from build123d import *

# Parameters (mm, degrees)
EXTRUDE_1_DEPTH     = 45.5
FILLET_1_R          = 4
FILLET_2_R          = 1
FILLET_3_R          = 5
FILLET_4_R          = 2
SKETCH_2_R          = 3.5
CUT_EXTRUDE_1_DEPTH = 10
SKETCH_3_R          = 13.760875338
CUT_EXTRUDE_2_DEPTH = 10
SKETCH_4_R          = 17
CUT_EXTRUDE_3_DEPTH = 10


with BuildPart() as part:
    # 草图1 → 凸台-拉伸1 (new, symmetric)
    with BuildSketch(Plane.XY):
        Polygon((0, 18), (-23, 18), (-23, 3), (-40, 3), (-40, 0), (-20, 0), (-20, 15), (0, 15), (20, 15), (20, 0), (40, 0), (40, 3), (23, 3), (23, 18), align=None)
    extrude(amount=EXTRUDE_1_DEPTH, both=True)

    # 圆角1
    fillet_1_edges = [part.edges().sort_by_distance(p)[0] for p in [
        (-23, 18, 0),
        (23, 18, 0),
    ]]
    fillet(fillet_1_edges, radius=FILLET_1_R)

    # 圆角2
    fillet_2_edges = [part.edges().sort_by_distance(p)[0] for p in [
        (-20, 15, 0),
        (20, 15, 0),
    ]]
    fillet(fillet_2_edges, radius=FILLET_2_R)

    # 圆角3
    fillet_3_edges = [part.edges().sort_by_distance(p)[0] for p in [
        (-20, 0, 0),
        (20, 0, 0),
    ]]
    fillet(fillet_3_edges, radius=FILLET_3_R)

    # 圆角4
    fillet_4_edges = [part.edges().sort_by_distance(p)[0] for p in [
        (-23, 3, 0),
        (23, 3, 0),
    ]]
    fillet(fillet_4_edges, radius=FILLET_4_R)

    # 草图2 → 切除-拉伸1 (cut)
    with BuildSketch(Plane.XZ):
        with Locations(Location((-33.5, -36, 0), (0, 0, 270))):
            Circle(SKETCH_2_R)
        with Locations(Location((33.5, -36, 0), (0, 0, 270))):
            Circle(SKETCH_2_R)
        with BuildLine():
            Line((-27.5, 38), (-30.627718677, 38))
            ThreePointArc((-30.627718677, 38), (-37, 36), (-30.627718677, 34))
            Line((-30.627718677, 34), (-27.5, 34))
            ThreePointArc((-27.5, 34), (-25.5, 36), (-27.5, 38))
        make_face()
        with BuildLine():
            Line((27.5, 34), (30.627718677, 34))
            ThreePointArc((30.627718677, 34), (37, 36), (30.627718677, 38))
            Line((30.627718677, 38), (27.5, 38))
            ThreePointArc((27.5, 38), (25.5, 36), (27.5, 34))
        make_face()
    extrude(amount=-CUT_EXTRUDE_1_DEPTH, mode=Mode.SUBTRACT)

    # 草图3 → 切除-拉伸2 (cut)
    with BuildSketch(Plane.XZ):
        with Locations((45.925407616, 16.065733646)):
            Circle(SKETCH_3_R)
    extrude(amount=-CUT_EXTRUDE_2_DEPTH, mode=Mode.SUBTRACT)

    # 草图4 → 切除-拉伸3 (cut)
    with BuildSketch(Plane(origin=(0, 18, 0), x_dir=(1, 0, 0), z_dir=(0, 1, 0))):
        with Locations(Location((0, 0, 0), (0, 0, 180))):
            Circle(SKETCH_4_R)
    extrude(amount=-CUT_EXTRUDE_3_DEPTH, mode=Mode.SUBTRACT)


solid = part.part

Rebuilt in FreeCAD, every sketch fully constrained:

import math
import FreeCAD as App
import Part
import Sketcher
Q = App.Units.Quantity


def edges_at(feature, points):
    """Names of the edges that pass closest to the given points."""
    edges = feature.Shape.Edges
    near = lambda p: min(range(len(edges)), key=lambda i: edges[i].distToShape(Part.Vertex(*p))[0])
    return sorted({f"Edge{near(p) + 1}" for p in points})


def add_polygon(sketch, points):
    """Adds a closed chain of lines whose ends are joined by coincident constraints."""
    first, n = sketch.GeometryCount, len(points)
    for a, b in zip(points, points[1:] + points[:1]):
        sketch.addGeometry(Part.LineSegment(App.Vector(*a, 0), App.Vector(*b, 0)), False)
    for i in range(n):
        sketch.addConstraint(Sketcher.Constraint("Coincident", first + i, 2, first + (i + 1) % n, 1))

doc = App.newDocument("Part")
body = doc.addObject("PartDesign::Body", "Body")

# Sketch on XY plane
sketch1 = body.newObject("Sketcher::SketchObject", "Sketch")
sketch1.AttachmentSupport = (doc.getObject("XY_Plane"), [""])
sketch1.MapMode = "FlatFace"
add_polygon(sketch1, [(-23, 18), (-23, 3), (-40, 3), (-40, 0), (-20, 0), (-20, 15), (20, 15), (20, 0), (40, 0), (40, 3), (23, 3), (23, 18)])  # lines 0-11
sketch1.addConstraint(Sketcher.Constraint("Vertical", 0))
sketch1.addConstraint(Sketcher.Constraint("Horizontal", 1))
sketch1.addConstraint(Sketcher.Constraint("Vertical", 2))
sketch1.addConstraint(Sketcher.Constraint("Horizontal", 3))
sketch1.addConstraint(Sketcher.Constraint("Vertical", 4))
sketch1.addConstraint(Sketcher.Constraint("Horizontal", 5))
sketch1.addConstraint(Sketcher.Constraint("Vertical", 6))
sketch1.addConstraint(Sketcher.Constraint("Horizontal", 7))
sketch1.addConstraint(Sketcher.Constraint("Vertical", 8))
sketch1.addConstraint(Sketcher.Constraint("Horizontal", 9))
sketch1.addConstraint(Sketcher.Constraint("Vertical", 10))
sketch1.addConstraint(Sketcher.Constraint("Horizontal", 11))
sketch1.addConstraint(Sketcher.Constraint("Symmetric", 3, 2, 6, 2, -1, 1))
sketch1.addConstraint(Sketcher.Constraint("Symmetric", 2, 2, 7, 2, -2))
sketch1.addConstraint(Sketcher.Constraint("Symmetric", 0, 2, 9, 2, -2))
sketch1.addConstraint(Sketcher.Constraint("Equal", 0, 4))
sketch1.addConstraint(Sketcher.Constraint("DistanceX", 1, 2, 1, 1, Q("17 mm")))
sketch1.addConstraint(Sketcher.Constraint("DistanceX", 3, 1, 3, 2, Q("20 mm")))
sketch1.addConstraint(Sketcher.Constraint("DistanceX", 5, 1, 5, 2, Q("40 mm")))
sketch1.addConstraint(Sketcher.Constraint("DistanceY", 0, 2, 0, 1, Q("15 mm")))
sketch1.addConstraint(Sketcher.Constraint("DistanceY", 2, 2, 2, 1, Q("3 mm")))
pad1 = body.newObject("PartDesign::Pad", "Pad")
pad1.Profile = sketch1
pad1.Length = 91
pad1.Midplane = True
doc.recompute()

fillet = body.newObject("PartDesign::Fillet", "Fillet")
fillet.Base = (pad1, edges_at(pad1, [(-23, 18, 0), (23, 18, 0)]))
fillet.Radius = 4
doc.recompute()

fillet2 = body.newObject("PartDesign::Fillet", "Fillet001")
fillet2.Base = (fillet, edges_at(fillet, [(-20, 15, 0), (20, 15, 0)]))
fillet2.Radius = 1
doc.recompute()

fillet3 = body.newObject("PartDesign::Fillet", "Fillet002")
fillet3.Base = (fillet2, edges_at(fillet2, [(-20, 0, 0), (20, 0, 0)]))
fillet3.Radius = 5
doc.recompute()

fillet4 = body.newObject("PartDesign::Fillet", "Fillet003")
fillet4.Base = (fillet3, edges_at(fillet3, [(-23, 3, 0), (23, 3, 0)]))
fillet4.Radius = 2

# Sketch on XZ plane
sketch2 = body.newObject("Sketcher::SketchObject", "Sketch001")
sketch2.AttachmentSupport = (doc.getObject("XZ_Plane"), [""])
sketch2.MapMode = "FlatFace"
sketch2.addGeometry(Part.Circle(App.Vector(-33.5, -36, 0), App.Vector(0, 0, 1), 3.5), False)
sketch2.addGeometry(Part.Circle(App.Vector(33.5, -36, 0), App.Vector(0, 0, 1), 3.5), False)
sketch2.addGeometry(Part.LineSegment(App.Vector(-27.5, 38, 0), App.Vector(-30.6, 38, 0)), False)
sketch2.addGeometry(Part.ArcOfCircle(Part.Circle(App.Vector(-33.5, 36, 0), App.Vector(0, 0, 1), 3.5), math.radians(35), math.radians(325)), False)
sketch2.addGeometry(Part.LineSegment(App.Vector(-30.6, 34, 0), App.Vector(-27.5, 34, 0)), False)
sketch2.addGeometry(Part.ArcOfCircle(Part.Circle(App.Vector(-27.5, 36, 0), App.Vector(0, 0, 1), 2), math.radians(-90), math.radians(90)), False)
sketch2.addGeometry(Part.LineSegment(App.Vector(27.5, 34, 0), App.Vector(30.6, 34, 0)), False)
sketch2.addGeometry(Part.ArcOfCircle(Part.Circle(App.Vector(33.5, 36, 0), App.Vector(0, 0, 1), 3.5), math.radians(-145), math.radians(145)), False)
sketch2.addGeometry(Part.LineSegment(App.Vector(30.6, 38, 0), App.Vector(27.5, 38, 0)), False)
sketch2.addGeometry(Part.ArcOfCircle(Part.Circle(App.Vector(27.5, 36, 0), App.Vector(0, 0, 1), 2), math.radians(90), math.radians(270)), False)
sketch2.addConstraint(Sketcher.Constraint("Coincident", 2, 2, 3, 1))
sketch2.addConstraint(Sketcher.Constraint("Coincident", 3, 2, 4, 1))
sketch2.addConstraint(Sketcher.Constraint("Tangent", 4, 2, 5, 1))
sketch2.addConstraint(Sketcher.Constraint("Tangent", 5, 2, 2, 1))
sketch2.addConstraint(Sketcher.Constraint("Coincident", 6, 2, 7, 1))
sketch2.addConstraint(Sketcher.Constraint("Coincident", 7, 2, 8, 1))
sketch2.addConstraint(Sketcher.Constraint("Tangent", 8, 2, 9, 1))
sketch2.addConstraint(Sketcher.Constraint("Tangent", 9, 2, 6, 1))
sketch2.addConstraint(Sketcher.Constraint("Horizontal", 2))
sketch2.addConstraint(Sketcher.Constraint("Horizontal", 4))
sketch2.addConstraint(Sketcher.Constraint("Horizontal", 6))
sketch2.addConstraint(Sketcher.Constraint("Horizontal", 8))
sketch2.addConstraint(Sketcher.Constraint("Equal", 0, 1))
sketch2.addConstraint(Sketcher.Constraint("Equal", 1, 3))
sketch2.addConstraint(Sketcher.Constraint("Equal", 3, 7))
sketch2.addConstraint(Sketcher.Constraint("Equal", 5, 9))
sketch2.addConstraint(Sketcher.Constraint("Symmetric", 1, 3, 3, 3, -1, 1))
sketch2.addConstraint(Sketcher.Constraint("Symmetric", 0, 3, 7, 3, -1, 1))
sketch2.addConstraint(Sketcher.Constraint("Symmetric", 0, 3, 1, 3, -2))
sketch2.addConstraint(Sketcher.Constraint("Symmetric", 5, 3, 9, 3, -2))
sketch2.addConstraint(Sketcher.Constraint("Horizontal", 3, 3, 5, 3))
sketch2.addConstraint(Sketcher.Constraint("Diameter", 0, Q("7 mm")))
sketch2.addConstraint(Sketcher.Constraint("Radius", 5, Q("2 mm")))
sketch2.addConstraint(Sketcher.Constraint("DistanceY", 0, 3, -1, 1, Q("36 mm")))
sketch2.addConstraint(Sketcher.Constraint("DistanceX", 0, 3, 1, 3, Q("67 mm")))
sketch2.addConstraint(Sketcher.Constraint("DistanceX", 3, 3, 5, 3, Q("6 mm")))
pocket1 = body.newObject("PartDesign::Pocket", "Pocket")
pocket1.Profile = sketch2
pocket1.Length = 10

# Sketch on XZ plane
sketch3 = body.newObject("Sketcher::SketchObject", "Sketch002")
sketch3.AttachmentSupport = (doc.getObject("XZ_Plane"), [""])
sketch3.MapMode = "FlatFace"
sketch3.addGeometry(Part.Circle(App.Vector(46, 16, 0), App.Vector(0, 0, 1), 14), False)
sketch3.addConstraint(Sketcher.Constraint("Diameter", 0, Q("27.521751 mm")))
sketch3.addConstraint(Sketcher.Constraint("DistanceX", -1, 1, 0, 3, Q("45.925408 mm")))
sketch3.addConstraint(Sketcher.Constraint("DistanceY", -1, 1, 0, 3, Q("16.065734 mm")))
pocket2 = body.newObject("PartDesign::Pocket", "Pocket001")
pocket2.Profile = sketch3
pocket2.Length = 10

# Sketch on XZ plane
sketch4 = body.newObject("Sketcher::SketchObject", "Sketch003")
sketch4.AttachmentSupport = (doc.getObject("XZ_Plane"), [""])
sketch4.MapMode = "FlatFace"
sketch4.AttachmentOffset = App.Placement(App.Vector(0, 0, -18), App.Rotation())
sketch4.addGeometry(Part.Circle(App.Vector(0, 0, 0), App.Vector(0, 0, 1), 17), False)
sketch4.addConstraint(Sketcher.Constraint("Coincident", 0, 3, -1, 1))
sketch4.addConstraint(Sketcher.Constraint("Diameter", 0, Q("34 mm")))
pocket3 = body.newObject("PartDesign::Pocket", "Pocket002")
pocket3.Profile = sketch4
pocket3.Length = 10
pocket3.Reversed = True

doc.recompute()
